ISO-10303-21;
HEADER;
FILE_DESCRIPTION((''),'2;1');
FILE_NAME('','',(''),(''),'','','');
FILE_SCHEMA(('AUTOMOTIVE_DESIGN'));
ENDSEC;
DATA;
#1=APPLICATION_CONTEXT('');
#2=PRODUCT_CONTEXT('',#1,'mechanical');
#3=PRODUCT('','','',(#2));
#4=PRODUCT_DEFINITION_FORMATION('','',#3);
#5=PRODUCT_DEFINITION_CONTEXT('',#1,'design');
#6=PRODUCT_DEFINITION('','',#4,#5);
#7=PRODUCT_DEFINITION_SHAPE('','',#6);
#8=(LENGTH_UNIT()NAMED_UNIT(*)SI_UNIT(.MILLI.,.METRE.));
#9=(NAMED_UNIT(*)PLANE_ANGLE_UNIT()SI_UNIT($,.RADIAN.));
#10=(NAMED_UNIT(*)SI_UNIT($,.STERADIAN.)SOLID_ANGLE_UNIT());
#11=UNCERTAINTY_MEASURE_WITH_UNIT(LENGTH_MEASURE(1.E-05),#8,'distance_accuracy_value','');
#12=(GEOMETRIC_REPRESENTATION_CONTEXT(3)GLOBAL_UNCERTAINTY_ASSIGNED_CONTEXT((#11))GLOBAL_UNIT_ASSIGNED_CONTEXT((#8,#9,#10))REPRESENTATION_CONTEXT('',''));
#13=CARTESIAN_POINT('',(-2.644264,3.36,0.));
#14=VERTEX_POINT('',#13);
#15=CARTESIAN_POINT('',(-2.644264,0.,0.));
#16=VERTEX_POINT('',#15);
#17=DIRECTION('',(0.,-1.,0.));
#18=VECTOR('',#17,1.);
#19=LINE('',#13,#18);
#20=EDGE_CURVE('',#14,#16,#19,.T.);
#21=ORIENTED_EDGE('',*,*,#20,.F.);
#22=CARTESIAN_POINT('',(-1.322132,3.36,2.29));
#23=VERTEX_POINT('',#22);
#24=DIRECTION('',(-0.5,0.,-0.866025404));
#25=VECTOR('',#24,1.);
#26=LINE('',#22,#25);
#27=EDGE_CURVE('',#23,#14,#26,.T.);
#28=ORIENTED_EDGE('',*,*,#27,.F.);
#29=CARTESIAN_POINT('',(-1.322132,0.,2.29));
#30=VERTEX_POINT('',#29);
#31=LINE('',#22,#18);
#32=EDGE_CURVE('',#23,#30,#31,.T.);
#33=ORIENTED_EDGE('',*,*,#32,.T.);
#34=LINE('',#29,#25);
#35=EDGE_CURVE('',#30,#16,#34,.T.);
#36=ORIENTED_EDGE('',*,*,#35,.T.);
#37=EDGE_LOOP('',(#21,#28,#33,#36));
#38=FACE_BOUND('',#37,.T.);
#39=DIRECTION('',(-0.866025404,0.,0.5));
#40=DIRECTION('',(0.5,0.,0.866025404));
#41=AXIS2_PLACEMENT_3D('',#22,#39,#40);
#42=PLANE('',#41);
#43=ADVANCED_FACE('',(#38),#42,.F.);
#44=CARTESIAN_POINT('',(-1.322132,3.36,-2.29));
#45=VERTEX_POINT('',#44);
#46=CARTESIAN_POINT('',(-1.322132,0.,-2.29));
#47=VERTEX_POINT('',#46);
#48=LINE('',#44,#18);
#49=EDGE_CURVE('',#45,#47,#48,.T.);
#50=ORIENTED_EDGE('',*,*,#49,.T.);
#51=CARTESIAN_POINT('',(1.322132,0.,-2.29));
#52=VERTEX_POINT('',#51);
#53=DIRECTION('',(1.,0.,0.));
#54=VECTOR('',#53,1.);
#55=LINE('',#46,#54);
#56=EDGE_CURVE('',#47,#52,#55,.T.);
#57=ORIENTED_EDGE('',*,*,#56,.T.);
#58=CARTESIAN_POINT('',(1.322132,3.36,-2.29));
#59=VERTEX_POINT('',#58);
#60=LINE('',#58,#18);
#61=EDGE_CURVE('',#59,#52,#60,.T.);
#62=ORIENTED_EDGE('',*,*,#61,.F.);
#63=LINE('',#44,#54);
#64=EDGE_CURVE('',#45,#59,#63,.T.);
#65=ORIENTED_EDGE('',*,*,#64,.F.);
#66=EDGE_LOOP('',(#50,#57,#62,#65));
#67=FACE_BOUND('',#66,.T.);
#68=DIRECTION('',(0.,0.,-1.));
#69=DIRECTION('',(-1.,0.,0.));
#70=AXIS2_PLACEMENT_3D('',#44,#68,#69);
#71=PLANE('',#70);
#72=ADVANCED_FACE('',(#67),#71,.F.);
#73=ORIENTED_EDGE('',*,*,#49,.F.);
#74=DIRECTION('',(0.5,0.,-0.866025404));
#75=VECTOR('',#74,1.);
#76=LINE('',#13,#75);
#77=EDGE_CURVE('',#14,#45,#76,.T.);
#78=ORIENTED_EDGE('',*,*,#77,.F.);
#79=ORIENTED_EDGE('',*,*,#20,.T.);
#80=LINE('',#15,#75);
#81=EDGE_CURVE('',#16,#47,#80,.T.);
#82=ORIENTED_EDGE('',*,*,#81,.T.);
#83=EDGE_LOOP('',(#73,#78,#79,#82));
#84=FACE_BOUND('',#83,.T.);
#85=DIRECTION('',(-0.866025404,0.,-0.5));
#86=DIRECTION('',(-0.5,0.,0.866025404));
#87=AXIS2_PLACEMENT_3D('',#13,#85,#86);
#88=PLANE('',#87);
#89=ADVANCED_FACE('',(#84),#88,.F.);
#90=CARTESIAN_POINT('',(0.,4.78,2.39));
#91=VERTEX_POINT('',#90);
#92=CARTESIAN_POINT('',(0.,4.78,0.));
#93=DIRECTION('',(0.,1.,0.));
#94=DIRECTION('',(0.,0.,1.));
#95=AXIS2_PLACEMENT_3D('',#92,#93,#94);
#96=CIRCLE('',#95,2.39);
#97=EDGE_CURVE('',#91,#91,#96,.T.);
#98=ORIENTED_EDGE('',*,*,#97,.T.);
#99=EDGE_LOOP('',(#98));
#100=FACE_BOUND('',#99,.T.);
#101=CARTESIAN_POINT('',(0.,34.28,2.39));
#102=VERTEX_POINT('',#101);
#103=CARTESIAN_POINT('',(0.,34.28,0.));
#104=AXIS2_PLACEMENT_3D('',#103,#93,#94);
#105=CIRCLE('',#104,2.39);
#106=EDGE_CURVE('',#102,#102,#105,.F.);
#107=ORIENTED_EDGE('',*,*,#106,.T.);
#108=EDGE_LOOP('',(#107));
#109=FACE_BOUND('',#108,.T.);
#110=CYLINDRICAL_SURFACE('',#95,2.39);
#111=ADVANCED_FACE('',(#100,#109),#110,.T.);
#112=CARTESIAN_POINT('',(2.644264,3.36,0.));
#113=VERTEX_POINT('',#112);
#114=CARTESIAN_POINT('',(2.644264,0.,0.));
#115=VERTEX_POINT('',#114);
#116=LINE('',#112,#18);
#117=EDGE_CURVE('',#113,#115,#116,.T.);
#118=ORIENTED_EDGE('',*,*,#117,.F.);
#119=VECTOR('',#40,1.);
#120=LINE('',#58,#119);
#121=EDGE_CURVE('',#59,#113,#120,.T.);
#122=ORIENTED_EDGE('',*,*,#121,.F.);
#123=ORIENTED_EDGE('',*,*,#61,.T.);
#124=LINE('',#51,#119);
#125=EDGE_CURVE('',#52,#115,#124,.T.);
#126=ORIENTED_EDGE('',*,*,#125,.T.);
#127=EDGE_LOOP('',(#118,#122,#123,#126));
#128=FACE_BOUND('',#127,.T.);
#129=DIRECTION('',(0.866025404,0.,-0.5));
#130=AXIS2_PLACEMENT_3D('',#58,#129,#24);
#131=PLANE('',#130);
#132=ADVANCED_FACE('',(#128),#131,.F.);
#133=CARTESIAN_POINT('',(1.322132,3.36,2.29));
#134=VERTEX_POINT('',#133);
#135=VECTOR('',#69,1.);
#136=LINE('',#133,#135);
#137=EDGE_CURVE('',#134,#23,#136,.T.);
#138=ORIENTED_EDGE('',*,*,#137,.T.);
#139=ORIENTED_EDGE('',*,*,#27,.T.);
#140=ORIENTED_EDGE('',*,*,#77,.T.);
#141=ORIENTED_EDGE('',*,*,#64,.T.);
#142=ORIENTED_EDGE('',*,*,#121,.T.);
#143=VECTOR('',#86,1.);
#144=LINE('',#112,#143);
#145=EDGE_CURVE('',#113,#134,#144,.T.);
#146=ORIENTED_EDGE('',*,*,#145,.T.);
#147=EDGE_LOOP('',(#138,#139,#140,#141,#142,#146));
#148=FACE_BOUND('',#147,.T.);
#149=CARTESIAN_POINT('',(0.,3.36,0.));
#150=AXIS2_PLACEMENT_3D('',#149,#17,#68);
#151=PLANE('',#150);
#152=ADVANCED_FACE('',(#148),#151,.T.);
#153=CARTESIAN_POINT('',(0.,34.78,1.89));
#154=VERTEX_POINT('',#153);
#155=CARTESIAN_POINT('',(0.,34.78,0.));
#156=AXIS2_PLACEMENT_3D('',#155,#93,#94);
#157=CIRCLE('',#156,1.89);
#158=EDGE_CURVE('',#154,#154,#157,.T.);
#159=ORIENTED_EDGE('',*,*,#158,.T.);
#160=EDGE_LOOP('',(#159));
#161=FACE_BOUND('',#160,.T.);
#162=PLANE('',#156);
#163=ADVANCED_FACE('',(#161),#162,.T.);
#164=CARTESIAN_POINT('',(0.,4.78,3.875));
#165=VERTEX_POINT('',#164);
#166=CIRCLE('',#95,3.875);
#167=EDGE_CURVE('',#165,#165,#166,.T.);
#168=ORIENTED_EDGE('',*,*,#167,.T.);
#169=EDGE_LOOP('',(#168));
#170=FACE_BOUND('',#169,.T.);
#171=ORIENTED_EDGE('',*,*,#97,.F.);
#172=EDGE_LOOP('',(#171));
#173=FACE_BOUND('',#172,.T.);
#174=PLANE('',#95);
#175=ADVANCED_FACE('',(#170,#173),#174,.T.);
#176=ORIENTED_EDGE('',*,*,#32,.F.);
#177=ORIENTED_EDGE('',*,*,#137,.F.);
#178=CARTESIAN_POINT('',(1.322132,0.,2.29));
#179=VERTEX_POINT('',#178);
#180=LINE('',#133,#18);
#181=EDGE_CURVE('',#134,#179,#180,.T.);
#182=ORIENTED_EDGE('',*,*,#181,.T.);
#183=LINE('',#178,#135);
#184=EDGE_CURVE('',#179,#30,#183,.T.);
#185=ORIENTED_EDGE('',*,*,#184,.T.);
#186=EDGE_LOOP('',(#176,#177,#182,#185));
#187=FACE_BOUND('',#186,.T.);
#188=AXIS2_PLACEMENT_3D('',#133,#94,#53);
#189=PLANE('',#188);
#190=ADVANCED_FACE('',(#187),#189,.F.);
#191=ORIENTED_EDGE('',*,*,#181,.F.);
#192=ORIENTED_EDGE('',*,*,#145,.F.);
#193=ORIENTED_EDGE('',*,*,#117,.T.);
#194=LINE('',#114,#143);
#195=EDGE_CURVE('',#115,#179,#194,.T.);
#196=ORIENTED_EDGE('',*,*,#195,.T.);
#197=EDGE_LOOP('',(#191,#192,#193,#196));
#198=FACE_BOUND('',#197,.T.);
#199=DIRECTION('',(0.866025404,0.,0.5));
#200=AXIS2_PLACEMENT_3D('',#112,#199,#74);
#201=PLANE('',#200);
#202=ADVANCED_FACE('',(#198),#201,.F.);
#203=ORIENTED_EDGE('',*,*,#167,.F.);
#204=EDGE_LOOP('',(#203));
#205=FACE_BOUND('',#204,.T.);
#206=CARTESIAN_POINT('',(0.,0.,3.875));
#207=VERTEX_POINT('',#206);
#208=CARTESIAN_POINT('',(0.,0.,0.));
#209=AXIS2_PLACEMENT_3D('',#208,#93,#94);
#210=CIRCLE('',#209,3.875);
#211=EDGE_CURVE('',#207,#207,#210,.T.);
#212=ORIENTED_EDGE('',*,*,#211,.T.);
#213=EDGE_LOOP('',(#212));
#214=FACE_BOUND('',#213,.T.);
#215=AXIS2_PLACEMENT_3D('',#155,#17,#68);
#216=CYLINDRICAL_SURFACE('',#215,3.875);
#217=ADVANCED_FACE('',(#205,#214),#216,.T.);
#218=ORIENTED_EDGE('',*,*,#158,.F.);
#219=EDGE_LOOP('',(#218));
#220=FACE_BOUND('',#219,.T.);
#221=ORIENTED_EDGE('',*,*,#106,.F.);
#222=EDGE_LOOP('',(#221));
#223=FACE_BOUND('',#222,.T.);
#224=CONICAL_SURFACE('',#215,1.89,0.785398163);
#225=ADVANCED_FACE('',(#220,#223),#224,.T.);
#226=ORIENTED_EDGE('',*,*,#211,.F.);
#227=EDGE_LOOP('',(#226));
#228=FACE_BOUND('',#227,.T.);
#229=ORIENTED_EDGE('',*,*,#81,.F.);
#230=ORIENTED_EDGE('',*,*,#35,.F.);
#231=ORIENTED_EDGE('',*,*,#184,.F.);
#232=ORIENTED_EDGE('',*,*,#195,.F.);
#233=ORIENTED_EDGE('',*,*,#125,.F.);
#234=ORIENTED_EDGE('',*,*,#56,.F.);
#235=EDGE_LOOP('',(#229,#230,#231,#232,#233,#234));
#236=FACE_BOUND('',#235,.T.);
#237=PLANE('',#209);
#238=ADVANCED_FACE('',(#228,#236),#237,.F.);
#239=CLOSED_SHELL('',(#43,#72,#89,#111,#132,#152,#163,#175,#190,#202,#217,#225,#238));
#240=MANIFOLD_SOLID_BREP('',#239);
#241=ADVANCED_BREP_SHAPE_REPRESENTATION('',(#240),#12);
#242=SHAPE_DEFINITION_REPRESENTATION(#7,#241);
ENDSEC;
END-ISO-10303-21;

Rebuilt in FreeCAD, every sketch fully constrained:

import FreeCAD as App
import Part
import Sketcher
from FreeCAD import Vector
Q = App.Units.Quantity


def edges_at(feature, points):
    """Names of the edges that pass closest to the given points."""
    edges = feature.Shape.Edges
    near = lambda p: min(range(len(edges)), key=lambda i: edges[i].distToShape(Part.Vertex(*p))[0])
    return sorted({f"Edge{near(p) + 1}" for p in points})

doc = App.newDocument("Part")
params = doc.addObject("Spreadsheet::Sheet", "Params")
for row, (alias, value) in enumerate([
    ("sketch1_diameter", "7.75 mm"),
    ("pad1_length", "34.78 mm"),
    ("sketch2_diameter", "4.78 mm"),
    ("pocket1_length", "30 mm"),
    ("chamfer_size", "0.5 mm"),
    ("pocket2_length", "3.36 mm"),
], start=1):
    params.set(f"A{row}", alias)
    params.set(f"B{row}", "=" + value)
    params.setAlias(f"B{row}", alias)

body = doc.addObject("PartDesign::Body", "Body")

# Sketch on XZ plane
sketch1 = doc.addObject("Sketcher::SketchObject", "Sketch")
body.addObject(sketch1)
sketch1.AttachmentSupport = (doc.XZ_Plane, [""])
sketch1.MapMode = "FlatFace"
sketch1.addGeometry(Part.Circle(Vector(0, 0, 0), Vector(0, 0, 1), 3.9), False)
sketch1.addConstraint(Sketcher.Constraint("Coincident", 0, 3, -1, 1))
sketch1.addConstraint(Sketcher.Constraint("Diameter", 0, Q("7.75 mm")))
sketch1.setExpression("Constraints[1]", "Params.sketch1_diameter")
pad1 = doc.addObject("PartDesign::Pad", "Pad")
body.addObject(pad1)
pad1.Profile = sketch1
pad1.setExpression("Length", "Params.pad1_length")
pad1.Reversed = True

# Sketch on XZ plane
sketch2 = doc.addObject("Sketcher::SketchObject", "Sketch001")
body.addObject(sketch2)
sketch2.AttachmentSupport = (doc.XZ_Plane, [""])
sketch2.MapMode = "FlatFace"
sketch2.AttachmentOffset = App.Placement(Vector(0, 0, -34.78), App.Rotation())
sketch2.addGeometry(Part.LineSegment(Vector(-8.5, -8.5, 0), Vector(-8.5, 8.5, 0)), False)
sketch2.addGeometry(Part.LineSegment(Vector(-8.5, 8.5, 0), Vector(8.5, 8.5, 0)), False)
sketch2.addGeometry(Part.LineSegment(Vector(8.5, 8.5, 0), Vector(8.5, -8.5, 0)), False)
sketch2.addGeometry(Part.LineSegment(Vector(8.5, -8.5, 0), Vector(-8.5, -8.5, 0)), False)
sketch2.addGeometry(Part.Circle(Vector(0, 0, 0), Vector(0, 0, 1), 2.4), False)
sketch2.addConstraint(Sketcher.Constraint("Coincident", 0, 2, 1, 1))
sketch2.addConstraint(Sketcher.Constraint("Coincident", 1, 2, 2, 1))
sketch2.addConstraint(Sketcher.Constraint("Coincident", 2, 2, 3, 1))
sketch2.addConstraint(Sketcher.Constraint("Coincident", 3, 2, 0, 1))
sketch2.addConstraint(Sketcher.Constraint("Vertical", 0))
sketch2.addConstraint(Sketcher.Constraint("Horizontal", 1))
sketch2.addConstraint(Sketcher.Constraint("Vertical", 2))
sketch2.addConstraint(Sketcher.Constraint("Horizontal", 3))
sketch2.addConstraint(Sketcher.Constraint("Coincident", 4, 3, -1, 1))
sketch2.addConstraint(Sketcher.Constraint("Symmetric", 0, 2, 2, 2, -1, 1))
sketch2.addConstraint(Sketcher.Constraint("Equal", 3, 0))
sketch2.addConstraint(Sketcher.Constraint("Diameter", 4, Q("4.78 mm")))
sketch2.addConstraint(Sketcher.Constraint("DistanceX", 1, 1, 1, 2, Q("17.044 mm")))
sketch2.setExpression("Constraints[11]", "Params.sketch2_diameter")
pocket1 = doc.addObject("PartDesign::Pocket", "Pocket")
body.addObject(pocket1)
pocket1.Profile = sketch2
pocket1.setExpression("Length", "Params.pocket1_length")
pocket1.Reversed = True
doc.recompute()

chamfer = doc.addObject("PartDesign::Chamfer", "Chamfer")
body.addObject(chamfer)
chamfer.Base = (pocket1, edges_at(pocket1, [(-2.39, 34.78, 0)]))
chamfer.setExpression("Size", "Params.chamfer_size")

# Sketch on XZ plane
sketch3 = doc.addObject("Sketcher::SketchObject", "Sketch002")
body.addObject(sketch3)
sketch3.AttachmentSupport = (doc.XZ_Plane, [""])
sketch3.MapMode = "FlatFace"
sketch3.addGeometry(Part.LineSegment(Vector(2.6, 0, 0), Vector(1.3, 2.3, 0)), False)
sketch3.addGeometry(Part.LineSegment(Vector(1.3, 2.3, 0), Vector(-1.3, 2.3, 0)), False)
sketch3.addGeometry(Part.LineSegment(Vector(-1.3, 2.3, 0), Vector(-2.6, 0, 0)), False)
sketch3.addGeometry(Part.LineSegment(Vector(-2.6, 0, 0), Vector(-1.3, -2.3, 0)), False)
sketch3.addGeometry(Part.LineSegment(Vector(-1.3, -2.3, 0), Vector(1.3, -2.3, 0)), False)
sketch3.addGeometry(Part.LineSegment(Vector(1.3, -2.3, 0), Vector(2.6, 0, 0)), False)
sketch3.addConstraint(Sketcher.Constraint("Coincident", 0, 2, 1, 1))
sketch3.addConstraint(Sketcher.Constraint("Coincident", 1, 2, 2, 1))
sketch3.addConstraint(Sketcher.Constraint("Coincident", 2, 2, 3, 1))
sketch3.addConstraint(Sketcher.Constraint("Coincident", 3, 2, 4, 1))
sketch3.addConstraint(Sketcher.Constraint("Coincident", 4, 2, 5, 1))
sketch3.addConstraint(Sketcher.Constraint("Coincident", 5, 2, 0, 1))
sketch3.addConstraint(Sketcher.Constraint("Horizontal", 1))
sketch3.addConstraint(Sketcher.Constraint("Horizontal", 4))
sketch3.addConstraint(Sketcher.Constraint("Symmetric", 0, 2, 3, 2, -1, 1))
sketch3.addConstraint(Sketcher.Constraint("Symmetric", 2, 2, 5, 2, -1, 1))
sketch3.addConstraint(Sketcher.Constraint("PointOnObject", 2, 2, -1))
sketch3.addConstraint(Sketcher.Constraint("Parallel", 2, 5))
sketch3.addConstraint(Sketcher.Constraint("Vertical", 1, 2, 3, 2))
sketch3.addConstraint(Sketcher.Constraint("Angle", 0, Q("120 deg")))
sketch3.addConstraint(Sketcher.Constraint("DistanceY", -1, 1, 0, 2, Q("2.29 mm")))
sketch3.addConstraint(Sketcher.Constraint("DistanceX", 1, 2, 1, 1, Q("2.644264 mm")))
pocket2 = doc.addObject("PartDesign::Pocket", "Pocket001")
body.addObject(pocket2)
pocket2.Profile = sketch3
pocket2.setExpression("Length", "Params.pocket2_length")

doc.recompute()
